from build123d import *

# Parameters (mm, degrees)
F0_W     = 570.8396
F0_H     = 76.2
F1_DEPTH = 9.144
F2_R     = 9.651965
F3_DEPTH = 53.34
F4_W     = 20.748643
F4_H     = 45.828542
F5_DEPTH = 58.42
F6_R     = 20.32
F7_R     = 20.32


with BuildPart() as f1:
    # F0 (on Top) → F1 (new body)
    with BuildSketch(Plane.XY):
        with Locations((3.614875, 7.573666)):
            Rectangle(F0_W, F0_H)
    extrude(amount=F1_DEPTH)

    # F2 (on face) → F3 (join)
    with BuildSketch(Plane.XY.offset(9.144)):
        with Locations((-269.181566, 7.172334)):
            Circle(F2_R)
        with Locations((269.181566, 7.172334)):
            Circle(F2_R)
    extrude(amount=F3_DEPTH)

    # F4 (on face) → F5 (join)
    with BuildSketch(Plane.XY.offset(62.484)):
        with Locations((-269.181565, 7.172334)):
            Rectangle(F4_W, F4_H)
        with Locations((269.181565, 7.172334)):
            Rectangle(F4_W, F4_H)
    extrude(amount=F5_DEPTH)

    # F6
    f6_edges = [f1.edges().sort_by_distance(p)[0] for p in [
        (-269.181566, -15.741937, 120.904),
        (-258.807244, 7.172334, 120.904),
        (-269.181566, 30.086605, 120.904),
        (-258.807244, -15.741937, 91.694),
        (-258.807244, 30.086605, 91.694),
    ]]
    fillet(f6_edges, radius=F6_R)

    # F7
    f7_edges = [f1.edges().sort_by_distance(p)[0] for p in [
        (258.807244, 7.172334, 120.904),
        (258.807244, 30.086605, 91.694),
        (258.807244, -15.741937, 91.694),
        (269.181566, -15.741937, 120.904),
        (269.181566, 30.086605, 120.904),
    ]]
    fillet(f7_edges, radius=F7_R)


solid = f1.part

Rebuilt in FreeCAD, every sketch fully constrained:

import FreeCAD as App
import Part
import Sketcher
Q = App.Units.Quantity


def edges_at(feature, points):
    """Names of the edges that pass closest to the given points."""
    edges = feature.Shape.Edges
    near = lambda p: min(range(len(edges)), key=lambda i: edges[i].distToShape(Part.Vertex(*p))[0])
    return sorted({f"Edge{near(p) + 1}" for p in points})

doc = App.newDocument("Part")
body = doc.addObject("PartDesign::Body", "Body")

# Sketch on XY plane
sketch1 = body.newObject("Sketcher::SketchObject", "Sketch")
sketch1.AttachmentSupport = (doc.getObject("XY_Plane"), [""])
sketch1.MapMode = "FlatFace"
sketch1.addGeometry([
    Part.LineSegment(App.Vector(-281.804925, 45.673666, 0), App.Vector(-281.804925, -30.526334, 0)),
    Part.LineSegment(App.Vector(-281.804925, -30.526334, 0), App.Vector(289.034675, -30.526334, 0)),
    Part.LineSegment(App.Vector(289.034675, -30.526334, 0), App.Vector(289.034675, 45.673666, 0)),
    Part.LineSegment(App.Vector(289.034675, 45.673666, 0), App.Vector(-281.804925, 45.673666, 0)),
], False)
sketch1.addConstraint([
    Sketcher.Constraint("Coincident", 0, 2, 1, 1),
    Sketcher.Constraint("Coincident", 1, 2, 2, 1),
    Sketcher.Constraint("Coincident", 2, 2, 3, 1),
    Sketcher.Constraint("Coincident", 3, 2, 0, 1),
    Sketcher.Constraint("Vertical", 0),
    Sketcher.Constraint("Horizontal", 1),
    Sketcher.Constraint("Vertical", 2),
    Sketcher.Constraint("Horizontal", 3),
    Sketcher.Constraint("DistanceY", 0, 2, 0, 1, Q("3 in")),
    Sketcher.Constraint("DistanceX", 1, 1, 1, 2, Q("22.474 in")),
    Sketcher.Constraint("DistanceX", 0, 2, -1, 1, 281.804925),
    Sketcher.Constraint("DistanceY", 0, 2, -1, 1, 30.526334),
])
pad1 = body.newObject("PartDesign::Pad", "Pad")
pad1.Profile = sketch1
pad1.Length = Q("0.36 in")

# Sketch on XY plane
sketch2 = body.newObject("Sketcher::SketchObject", "Sketch001")
sketch2.AttachmentSupport = (doc.getObject("XY_Plane"), [""])
sketch2.MapMode = "FlatFace"
sketch2.AttachmentOffset = App.Placement(App.Vector(0, 0, 0.36 * 25.4), App.Rotation())
sketch2.addGeometry([
    Part.Circle(App.Vector(-269.181566, 7.172334, 0), App.Vector(0, 0, 1), 9.651965),
    Part.Circle(App.Vector(269.181566, 7.172334, 0), App.Vector(0, 0, 1), 9.651965),
], False)
sketch2.addConstraint([
    Sketcher.Constraint("Equal", 0, 1),
    Sketcher.Constraint("Symmetric", 0, 3, 1, 3, -2),
    Sketcher.Constraint("Diameter", 0, 19.30393),
    Sketcher.Constraint("DistanceX", 0, 3, 1, 3, 538.363132),
    Sketcher.Constraint("DistanceY", -1, 1, 0, 3, 7.172334),
])
pad2 = body.newObject("PartDesign::Pad", "Pad001")
pad2.Profile = sketch2
pad2.Length = Q("2.1 in")

# Sketch on XY plane
sketch3 = body.newObject("Sketcher::SketchObject", "Sketch002")
sketch3.AttachmentSupport = (doc.getObject("XY_Plane"), [""])
sketch3.MapMode = "FlatFace"
sketch3.AttachmentOffset = App.Placement(App.Vector(0, 0, 2.46 * 25.4), App.Rotation())
sketch3.addGeometry([
    Part.LineSegment(App.Vector(-279.555886, 30.086605, 0), App.Vector(-279.555886, -15.741937, 0)),  # 0
    Part.LineSegment(App.Vector(-279.555886, -15.741937, 0), App.Vector(-258.807244, -15.741937, 0)),  # 1
    Part.LineSegment(App.Vector(-258.807244, -15.741937, 0), App.Vector(-258.807244, 30.086605, 0)),  # 2
    Part.LineSegment(App.Vector(-258.807244, 30.086605, 0), App.Vector(-279.555886, 30.086605, 0)),  # 3
    Part.LineSegment(App.Vector(258.807244, 30.086605, 0), App.Vector(258.807244, -15.741937, 0)),  # 4
    Part.LineSegment(App.Vector(258.807244, -15.741937, 0), App.Vector(279.555886, -15.741937, 0)),  # 5
    Part.LineSegment(App.Vector(279.555886, -15.741937, 0), App.Vector(279.555886, 30.086605, 0)),  # 6
    Part.LineSegment(App.Vector(279.555886, 30.086605, 0), App.Vector(258.807244, 30.086605, 0)),  # 7
], False)
sketch3.addConstraint([
    Sketcher.Constraint("Coincident", 0, 2, 1, 1),
    Sketcher.Constraint("Coincident", 1, 2, 2, 1),
    Sketcher.Constraint("Coincident", 2, 2, 3, 1),
    Sketcher.Constraint("Coincident", 3, 2, 0, 1),
    Sketcher.Constraint("Coincident", 4, 2, 5, 1),
    Sketcher.Constraint("Coincident", 5, 2, 6, 1),
    Sketcher.Constraint("Coincident", 6, 2, 7, 1),
    Sketcher.Constraint("Coincident", 7, 2, 4, 1),
    Sketcher.Constraint("Vertical", 0),
    Sketcher.Constraint("Horizontal", 1),
    Sketcher.Constraint("Vertical", 2),
    Sketcher.Constraint("Horizontal", 3),
    Sketcher.Constraint("Vertical", 4),
    Sketcher.Constraint("Horizontal", 5),
    Sketcher.Constraint("Vertical", 6),
    Sketcher.Constraint("Horizontal", 7),
    Sketcher.Constraint("Symmetric", 1, 2, 4, 2, -2),
    Sketcher.Constraint("Symmetric", 3, 2, 6, 2, -2),
    Sketcher.Constraint("DistanceX", 1, 1, 1, 2, 20.748643),
    Sketcher.Constraint("DistanceY", 0, 2, 0, 1, 45.828542),
    Sketcher.Constraint("DistanceX", 0, 2, 4, 2, 538.36313),
    Sketcher.Constraint("DistanceY", 0, 2, -1, 1, 15.741937),
])
pad3 = body.newObject("PartDesign::Pad", "Pad002")
pad3.Profile = sketch3
pad3.Length = Q("2.3 in")
doc.recompute()

fillet = body.newObject("PartDesign::Fillet", "Fillet")
fillet.Base = (pad3, edges_at(pad3, [
    (-269.182, -15.742, 120.904),
    (-258.807, 7.172, 120.904),
    (-269.182, 30.087, 120.904),
    (-258.807, -15.742, 91.694),
    (-258.807, 30.087, 91.694),
]))
fillet.Radius = Q("0.8 in")
doc.recompute()

fillet2 = body.newObject("PartDesign::Fillet", "Fillet001")
fillet2.Base = (fillet, edges_at(fillet, [
    (258.807, 7.172, 120.904),
    (258.807, 30.087, 91.694),
    (258.807, -15.742, 91.694),
    (269.182, -15.742, 120.904),
    (269.182, 30.087, 120.904),
]))
fillet2.Radius = Q("0.8 in")

doc.recompute()
